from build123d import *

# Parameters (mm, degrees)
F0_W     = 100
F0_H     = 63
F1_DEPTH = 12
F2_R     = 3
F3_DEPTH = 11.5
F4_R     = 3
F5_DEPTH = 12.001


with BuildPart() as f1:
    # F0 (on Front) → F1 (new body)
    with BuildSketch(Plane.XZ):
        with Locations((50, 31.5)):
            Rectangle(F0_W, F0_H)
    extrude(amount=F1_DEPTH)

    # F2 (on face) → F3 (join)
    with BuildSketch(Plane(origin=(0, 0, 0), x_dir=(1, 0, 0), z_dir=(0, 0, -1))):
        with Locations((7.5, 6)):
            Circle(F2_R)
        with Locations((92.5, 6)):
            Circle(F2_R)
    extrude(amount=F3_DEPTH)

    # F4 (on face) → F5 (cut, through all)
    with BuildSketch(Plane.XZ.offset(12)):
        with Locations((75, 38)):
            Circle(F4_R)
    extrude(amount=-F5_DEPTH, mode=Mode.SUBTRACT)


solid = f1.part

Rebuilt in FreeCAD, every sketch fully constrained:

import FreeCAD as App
import Part
import Sketcher

V = App.Vector
Q = App.Units.Quantity


def add_polygon(sketch, points):
    """Adds a closed chain of lines whose ends are joined by coincident constraints."""
    first, n = sketch.GeometryCount, len(points)
    for a, b in zip(points, points[1:] + points[:1]):
        sketch.addGeometry(Part.LineSegment(App.Vector(*a, 0), App.Vector(*b, 0)), False)
    for i in range(n):
        sketch.addConstraint(Sketcher.Constraint("Coincident", first + i, 2, first + (i + 1) % n, 1))

doc = App.newDocument("Part")
body = doc.addObject("PartDesign::Body", "Body")

sketch1 = body.newObject("Sketcher::SketchObject", "Sketch")
sketch1.AttachmentSupport = (doc.getObject("XZ_Plane"), [""])
sketch1.MapMode = "FlatFace"
add_polygon(sketch1, [(0, 63), (0, 0), (100, 0), (100, 63)])
sketch1.addConstraint(Sketcher.Constraint("Vertical", 0))
sketch1.addConstraint(Sketcher.Constraint("Horizontal", 1))
sketch1.addConstraint(Sketcher.Constraint("Vertical", 2))
sketch1.addConstraint(Sketcher.Constraint("Horizontal", 3))
sketch1.addConstraint(Sketcher.Constraint("Coincident", 0, 2, -1, 1))
sketch1.addConstraint(Sketcher.Constraint("DistanceX", 1, 1, 1, 2, Q("100 mm")))
sketch1.addConstraint(Sketcher.Constraint("DistanceY", 0, 2, 0, 1, Q("63 mm")))
pad1 = body.newObject("PartDesign::Pad", "Pad")
pad1.Profile = sketch1
pad1.Length = 12

sketch2 = body.newObject("Sketcher::SketchObject", "Sketch001")
sketch2.AttachmentSupport = (doc.getObject("XY_Plane"), [""])
sketch2.MapMode = "FlatFace"
sketch2.addGeometry(Part.Circle(V(7.5, -6, 0), V(0, 0, 1), 3), False)
sketch2.addGeometry(Part.Circle(V(92.5, -6, 0), V(0, 0, 1), 3), False)
sketch2.addConstraint(Sketcher.Constraint("Equal", 0, 1))
sketch2.addConstraint(Sketcher.Constraint("Horizontal", 0, 3, 1, 3))
sketch2.addConstraint(Sketcher.Constraint("Diameter", 0, Q("6 mm")))
sketch2.addConstraint(Sketcher.Constraint("DistanceY", 0, 3, -1, 1, Q("6 mm")))
sketch2.addConstraint(Sketcher.Constraint("DistanceX", 0, 3, 1, 3, Q("85 mm")))
sketch2.addConstraint(Sketcher.Constraint("DistanceX", -1, 1, 0, 3, Q("7.5 mm")))
pad2 = body.newObject("PartDesign::Pad", "Pad001")
pad2.Profile = sketch2
pad2.Length = 11.5
pad2.Reversed = True

sketch3 = body.newObject("Sketcher::SketchObject", "Sketch002")
sketch3.AttachmentSupport = (doc.getObject("XZ_Plane"), [""])
sketch3.MapMode = "FlatFace"
sketch3.AttachmentOffset = App.Placement(V(0, 0, 12), App.Rotation())
sketch3.addGeometry(Part.Circle(V(75, 38, 0), V(0, 0, 1), 3), False)
sketch3.addConstraint(Sketcher.Constraint("Diameter", 0, Q("6 mm")))
sketch3.addConstraint(Sketcher.Constraint("DistanceX", -1, 1, 0, 3, Q("75 mm")))
sketch3.addConstraint(Sketcher.Constraint("DistanceY", -1, 1, 0, 3, Q("38 mm")))
pocket1 = body.newObject("PartDesign::Pocket", "Pocket")
pocket1.Profile = sketch3
pocket1.Type = "ThroughAll"

doc.recompute()
